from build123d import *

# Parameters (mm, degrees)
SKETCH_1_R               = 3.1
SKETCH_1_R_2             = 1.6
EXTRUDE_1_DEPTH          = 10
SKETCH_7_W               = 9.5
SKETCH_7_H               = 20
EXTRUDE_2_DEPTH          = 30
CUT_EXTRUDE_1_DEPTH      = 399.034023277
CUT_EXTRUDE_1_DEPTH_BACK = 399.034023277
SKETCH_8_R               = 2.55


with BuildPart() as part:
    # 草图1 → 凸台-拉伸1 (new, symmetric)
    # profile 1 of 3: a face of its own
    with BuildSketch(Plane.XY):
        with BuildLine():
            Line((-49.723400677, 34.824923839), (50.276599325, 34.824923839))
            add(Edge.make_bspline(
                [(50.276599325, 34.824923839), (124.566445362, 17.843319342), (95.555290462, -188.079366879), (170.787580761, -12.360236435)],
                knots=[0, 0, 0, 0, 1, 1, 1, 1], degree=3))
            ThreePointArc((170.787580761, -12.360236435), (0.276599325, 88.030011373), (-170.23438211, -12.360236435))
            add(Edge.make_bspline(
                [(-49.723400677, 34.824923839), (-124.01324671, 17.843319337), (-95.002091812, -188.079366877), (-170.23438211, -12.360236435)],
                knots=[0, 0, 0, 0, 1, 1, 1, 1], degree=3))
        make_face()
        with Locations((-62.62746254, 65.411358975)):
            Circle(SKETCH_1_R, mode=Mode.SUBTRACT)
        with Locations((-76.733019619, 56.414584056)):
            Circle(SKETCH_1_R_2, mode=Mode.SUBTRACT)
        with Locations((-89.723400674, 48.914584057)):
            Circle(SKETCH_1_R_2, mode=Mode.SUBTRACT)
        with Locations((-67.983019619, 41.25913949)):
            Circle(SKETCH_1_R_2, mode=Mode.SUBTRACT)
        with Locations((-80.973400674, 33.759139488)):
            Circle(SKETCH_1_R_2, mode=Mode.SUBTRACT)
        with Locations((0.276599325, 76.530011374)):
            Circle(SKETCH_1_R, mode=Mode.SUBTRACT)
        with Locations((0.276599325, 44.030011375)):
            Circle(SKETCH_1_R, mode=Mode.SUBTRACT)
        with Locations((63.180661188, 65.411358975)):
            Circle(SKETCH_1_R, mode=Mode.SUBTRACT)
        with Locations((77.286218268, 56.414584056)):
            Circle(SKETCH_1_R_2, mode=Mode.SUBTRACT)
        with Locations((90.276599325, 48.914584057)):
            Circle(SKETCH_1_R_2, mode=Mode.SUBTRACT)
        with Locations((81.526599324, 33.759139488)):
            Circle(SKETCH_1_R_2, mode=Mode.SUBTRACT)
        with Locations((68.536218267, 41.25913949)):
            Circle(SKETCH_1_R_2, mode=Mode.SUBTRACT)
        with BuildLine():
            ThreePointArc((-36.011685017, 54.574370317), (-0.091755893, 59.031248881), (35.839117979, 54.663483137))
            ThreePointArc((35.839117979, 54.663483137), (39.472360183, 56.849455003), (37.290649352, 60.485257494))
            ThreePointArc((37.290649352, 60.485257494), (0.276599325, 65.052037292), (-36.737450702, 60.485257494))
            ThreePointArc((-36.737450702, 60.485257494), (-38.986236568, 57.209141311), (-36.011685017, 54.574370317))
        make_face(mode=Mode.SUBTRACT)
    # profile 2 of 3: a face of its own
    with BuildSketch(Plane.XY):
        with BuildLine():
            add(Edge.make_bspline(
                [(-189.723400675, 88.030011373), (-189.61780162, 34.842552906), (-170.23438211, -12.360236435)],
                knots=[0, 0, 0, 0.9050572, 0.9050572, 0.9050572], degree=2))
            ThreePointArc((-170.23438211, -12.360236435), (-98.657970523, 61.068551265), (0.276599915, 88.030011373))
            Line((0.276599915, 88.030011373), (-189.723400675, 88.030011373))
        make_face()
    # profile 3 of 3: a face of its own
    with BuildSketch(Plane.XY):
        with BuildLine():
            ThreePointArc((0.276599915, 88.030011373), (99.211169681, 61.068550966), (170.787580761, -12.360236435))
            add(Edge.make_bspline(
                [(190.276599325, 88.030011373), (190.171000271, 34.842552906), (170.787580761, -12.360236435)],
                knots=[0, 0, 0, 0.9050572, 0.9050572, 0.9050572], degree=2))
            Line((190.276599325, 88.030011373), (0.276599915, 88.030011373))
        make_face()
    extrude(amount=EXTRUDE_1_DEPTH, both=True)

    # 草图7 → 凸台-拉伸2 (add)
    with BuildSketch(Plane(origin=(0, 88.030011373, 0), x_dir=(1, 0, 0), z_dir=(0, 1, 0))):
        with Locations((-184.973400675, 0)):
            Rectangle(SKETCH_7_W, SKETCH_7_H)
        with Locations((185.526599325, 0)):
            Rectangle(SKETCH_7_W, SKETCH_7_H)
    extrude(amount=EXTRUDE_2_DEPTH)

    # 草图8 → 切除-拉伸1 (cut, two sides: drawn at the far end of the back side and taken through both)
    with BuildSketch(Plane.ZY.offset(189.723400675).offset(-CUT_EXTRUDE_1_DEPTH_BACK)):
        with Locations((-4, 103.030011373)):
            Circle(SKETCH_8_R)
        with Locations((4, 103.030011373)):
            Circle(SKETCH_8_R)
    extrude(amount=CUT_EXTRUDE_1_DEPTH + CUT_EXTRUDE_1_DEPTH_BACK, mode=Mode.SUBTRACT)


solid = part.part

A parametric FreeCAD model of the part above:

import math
import FreeCAD as App
import Part
import Sketcher

V = App.Vector


def add_polygon(sketch, points):
    """Adds a closed chain of lines whose ends are joined by coincident constraints."""
    first, n = sketch.GeometryCount, len(points)
    for a, b in zip(points, points[1:] + points[:1]):
        sketch.addGeometry(Part.LineSegment(App.Vector(*a, 0), App.Vector(*b, 0)), False)
    for i in range(n):
        sketch.addConstraint(Sketcher.Constraint("Coincident", first + i, 2, first + (i + 1) % n, 1))

doc = App.newDocument("Part")
body = doc.addObject("PartDesign::Body", "Body")

# Sketch on XY plane
sketch1 = doc.addObject("Sketcher::SketchObject", "Sketch")
body.addObject(sketch1)
sketch1.AttachmentSupport = (doc.XY_Plane, [""])
sketch1.MapMode = "FlatFace"
sketch1.addGeometry(Part.LineSegment(V(-49.723401, 34.824924, 0), V(50.276599, 34.824924, 0)), False)
sketch1.addGeometry(Part.BSplineCurve([V(50.276599, 34.824924, 0), V(124.566445, 17.843319, 0), V(95.55529, -188.079367, 0), V(170.787581, -12.360236, 0)], [4, 4], [0, 1], False, 3, [1, 1, 1, 1], False), False)
sketch1.addGeometry(Part.BSplineCurve([V(190.276599, 88.030011, 0), V(190.171, 34.842553, 0), V(170.787581, -12.360236, 0)], [3, 3], [0, 0.9050572], False, 2, [1, 1, 1], False), False)
sketch1.addGeometry(Part.LineSegment(V(190.276599, 88.030011, 0), V(-189.723401, 88.030011, 0)), False)
sketch1.addGeometry(Part.BSplineCurve([V(-189.723401, 88.030011, 0), V(-189.617802, 34.842553, 0), V(-170.234382, -12.360236, 0)], [3, 3], [0, 0.9050572], False, 2, [1, 1, 1], False), False)
sketch1.addGeometry(Part.BSplineCurve([V(-49.723401, 34.824924, 0), V(-124.013247, 17.843319, 0), V(-95.002092, -188.079367, 0), V(-170.234382, -12.360236, 0)], [4, 4], [0, 1], False, 3, [1, 1, 1, 1], False), False)
sketch1.addGeometry(Part.Circle(V(-80.973401, 33.759139, 0), V(0, 0, 1), 1.6), False)
sketch1.addGeometry(Part.Circle(V(-67.98302, 41.259139, 0), V(0, 0, 1), 1.6), False)
sketch1.addGeometry(Part.Circle(V(-89.723401, 48.914584, 0), V(0, 0, 1), 1.6), False)
sketch1.addGeometry(Part.Circle(V(0.276599, 44.030011, 0), V(0, 0, 1), 3.1), False)
sketch1.addGeometry(Part.Circle(V(81.526599, 33.759139, 0), V(0, 0, 1), 1.6), False)
sketch1.addGeometry(Part.Circle(V(68.536218, 41.259139, 0), V(0, 0, 1), 1.6), False)
sketch1.addGeometry(Part.Circle(V(90.276599, 48.914584, 0), V(0, 0, 1), 1.6), False)
sketch1.addGeometry(Part.Circle(V(-76.73302, 56.414584, 0), V(0, 0, 1), 1.6), False)
sketch1.addGeometry(Part.Circle(V(-62.627463, 65.411359, 0), V(0, 0, 1), 3.1), False)
sketch1.addGeometry(Part.ArcOfCircle(Part.Circle(V(0.092371, -89.428339, 0), V(0, 0, 1), 148.459702), math.radians(76.067172), math.radians(104.07495)), False)
sketch1.addGeometry(Part.ArcOfCircle(Part.Circle(V(-36.008167, 57.574802, 0), V(0, 0, 1), 3.000434), math.radians(104.067172), math.radians(269.932828)), False)
sketch1.addGeometry(Part.ArcOfCircle(Part.Circle(V(0.276599, -87.232005, 0), V(0, 0, 1), 152.284042), math.radians(75.932828), math.radians(104.067172)), False)
sketch1.addGeometry(Part.ArcOfCircle(Part.Circle(V(36.561471, 57.575221, 0), V(0, 0, 1), 3.000002), math.radians(-103.932828), math.radians(75.932828)), False)
sketch1.addGeometry(Part.Circle(V(0.276599, 76.530011, 0), V(0, 0, 1), 3.1), False)
sketch1.addGeometry(Part.Circle(V(77.286218, 56.414584, 0), V(0, 0, 1), 1.6), False)
sketch1.addGeometry(Part.Circle(V(63.180661, 65.411359, 0), V(0, 0, 1), 3.1), False)
sketch1.addConstraint(Sketcher.Constraint("Block", 1))
sketch1.addConstraint(Sketcher.Constraint("Block", 2))
sketch1.addConstraint(Sketcher.Constraint("Block", 4))
sketch1.addConstraint(Sketcher.Constraint("Block", 5))
sketch1.addConstraint(Sketcher.Constraint("Coincident", 0, 2, 1, 1))
sketch1.addConstraint(Sketcher.Constraint("Coincident", 2, 1, 3, 1))
sketch1.addConstraint(Sketcher.Constraint("Coincident", 3, 2, 4, 1))
sketch1.addConstraint(Sketcher.Constraint("Coincident", 5, 1, 0, 1))
sketch1.addConstraint(Sketcher.Constraint("Coincident", 15, 2, 16, 2))
sketch1.addConstraint(Sketcher.Constraint("Tangent", 16, 1, 17, 2))
sketch1.addConstraint(Sketcher.Constraint("Tangent", 17, 1, 18, 2))
sketch1.addConstraint(Sketcher.Constraint("Tangent", 18, 1, 15, 1))
sketch1.addConstraint(Sketcher.Constraint("Equal", 6, 7))
sketch1.addConstraint(Sketcher.Constraint("Equal", 7, 8))
sketch1.addConstraint(Sketcher.Constraint("Equal", 8, 10))
sketch1.addConstraint(Sketcher.Constraint("Equal", 10, 11))
sketch1.addConstraint(Sketcher.Constraint("Equal", 11, 12))
sketch1.addConstraint(Sketcher.Constraint("Equal", 12, 13))
sketch1.addConstraint(Sketcher.Constraint("Equal", 9, 14))
sketch1.addConstraint(Sketcher.Constraint("Equal", 14, 19))
sketch1.addConstraint(Sketcher.Constraint("Equal", 13, 20))
sketch1.addConstraint(Sketcher.Constraint("Equal", 19, 21))
sketch1.addConstraint(Sketcher.Constraint("Horizontal", 6, 3, 10, 3))
sketch1.addConstraint(Sketcher.Constraint("Horizontal", 7, 3, 11, 3))
sketch1.addConstraint(Sketcher.Constraint("Horizontal", 8, 3, 12, 3))
sketch1.addConstraint(Sketcher.Constraint("Horizontal", 13, 3, 20, 3))
sketch1.addConstraint(Sketcher.Constraint("Horizontal", 14, 3, 21, 3))
sketch1.addConstraint(Sketcher.Constraint("Horizontal", 16, 1, 17, 1))
sketch1.addConstraint(Sketcher.Constraint("Vertical", 9, 3, 17, 3))
sketch1.addConstraint(Sketcher.Constraint("Vertical", 17, 3, 19, 3))
sketch1.addConstraint(Sketcher.Constraint("Diameter", 6, 3.2))
sketch1.addConstraint(Sketcher.Constraint("Diameter", 9, 6.2))
sketch1.addConstraint(Sketcher.Constraint("DistanceX", 8, 3, 9, 3, 90.0))
sketch1.addConstraint(Sketcher.Constraint("DistanceX", 9, 3, 12, 3, 90.0))
sketch1.addConstraint(Sketcher.Constraint("DistanceX", 3, 2, 8, 3, 100.0))
sketch1.addConstraint(Sketcher.Constraint("DistanceY", 6, 3, 7, 3, 7.5))
sketch1.addConstraint(Sketcher.Constraint("DistanceX", 6, 3, 10, 3, 162.5))
sketch1.addConstraint(Sketcher.Constraint("DistanceY", 8, 3, 13, 3, 7.5))
sketch1.addConstraint(Sketcher.Constraint("DistanceY", 9, 3, 19, 3, 32.5))
sketch1.addConstraint(Sketcher.Constraint("DistanceX", 8, 3, 6, 3, 8.75))
sketch1.addConstraint(Sketcher.Constraint("DistanceX", 13, 3, 7, 3, 8.75))
sketch1.addConstraint(Sketcher.Constraint("DistanceX", 11, 3, 20, 3, 8.75))
sketch1.addConstraint(Sketcher.Constraint("Radius", 15, 148.459702))
sketch1.addConstraint(Sketcher.Constraint("Radius", 16, 3.000434))
sketch1.addConstraint(Sketcher.Constraint("Radius", 17, 152.284042))
sketch1.addConstraint(Sketcher.Constraint("Radius", 18, 3.000002))
sketch1.addConstraint(Sketcher.Constraint("DistanceY", 16, 1, 14, 3, 4.926101))
sketch1.addConstraint(Sketcher.Constraint("DistanceX", 18, 1, 11, 3, 32.6971))
sketch1.addConstraint(Sketcher.Constraint("DistanceY", -1, 1, 6, 3, 33.759139))
sketch1.addConstraint(Sketcher.Constraint("DistanceX", 7, 3, -1, 1, 67.98302))
sketch1.addConstraint(Sketcher.Constraint("DistanceY", -1, 1, 9, 3, 44.030011))
sketch1.addConstraint(Sketcher.Constraint("DistanceX", -1, 1, 11, 3, 68.536218))
sketch1.addConstraint(Sketcher.Constraint("DistanceY", -1, 1, 14, 3, 65.411359))
sketch1.addConstraint(Sketcher.Constraint("DistanceX", -1, 1, 15, 3, 0.092371))
sketch1.addConstraint(Sketcher.Constraint("DistanceX", -1, 1, 21, 3, 63.180661))
sketch1.addConstraint(Sketcher.Constraint("DistanceX", 8, 3, 14, 3, 27.095938))
sketch1.addConstraint(Sketcher.Constraint("DistanceY", 13, 3, 16, 3, 1.160218))
pad1 = doc.addObject("PartDesign::Pad", "Pad")
body.addObject(pad1)
pad1.Profile = sketch1
pad1.Length = 20
pad1.Midplane = True

# Sketch on XZ plane
sketch2 = doc.addObject("Sketcher::SketchObject", "Sketch001")
body.addObject(sketch2)
sketch2.AttachmentSupport = (doc.XZ_Plane, [""])
sketch2.MapMode = "FlatFace"
sketch2.AttachmentOffset = App.Placement(V(0, 0, -88.030011), App.Rotation())
add_polygon(sketch2, [(-189.723401, -10), (-189.723401, 10), (-180.223401, 10), (-180.223401, -10)])  # lines 0-3
add_polygon(sketch2, [(180.776599, -10), (180.776599, 10), (190.276599, 10), (190.276599, -10)])  # lines 4-7
sketch2.addConstraint(Sketcher.Constraint("Vertical", 0))
sketch2.addConstraint(Sketcher.Constraint("Horizontal", 1))
sketch2.addConstraint(Sketcher.Constraint("Vertical", 2))
sketch2.addConstraint(Sketcher.Constraint("Horizontal", 3))
sketch2.addConstraint(Sketcher.Constraint("Vertical", 4))
sketch2.addConstraint(Sketcher.Constraint("Horizontal", 5))
sketch2.addConstraint(Sketcher.Constraint("Vertical", 6))
sketch2.addConstraint(Sketcher.Constraint("Horizontal", 7))
sketch2.addConstraint(Sketcher.Constraint("Horizontal", 1, 2, 4, 2))
sketch2.addConstraint(Sketcher.Constraint("Horizontal", 3, 2, 6, 2))
sketch2.addConstraint(Sketcher.Constraint("Equal", 3, 5))
sketch2.addConstraint(Sketcher.Constraint("DistanceY", 0, 1, 0, 2, 20.0))
sketch2.addConstraint(Sketcher.Constraint("DistanceX", 1, 1, 1, 2, 9.5))
sketch2.addConstraint(Sketcher.Constraint("DistanceY", -1, 1, 0, 2, 10.0))
sketch2.addConstraint(Sketcher.Constraint("DistanceX", 1, 2, 4, 2, 361.0))
sketch2.addConstraint(Sketcher.Constraint("DistanceX", 0, 2, -1, 1, 189.723401))
pad2 = doc.addObject("PartDesign::Pad", "Pad001")
body.addObject(pad2)
pad2.Profile = sketch2
pad2.Length = 30
pad2.Reversed = True

# Sketch on YZ plane
sketch3 = doc.addObject("Sketcher::SketchObject", "Sketch002")
body.addObject(sketch3)
sketch3.AttachmentSupport = (doc.YZ_Plane, [""])
sketch3.MapMode = "FlatFace"
sketch3.AttachmentOffset = App.Placement(V(0, 0, -189.723401), App.Rotation())
sketch3.addGeometry(Part.Circle(V(103.030011, -4, 0), V(0, 0, 1), 2.55), False)
sketch3.addGeometry(Part.Circle(V(103.030011, 4, 0), V(0, 0, 1), 2.55), False)
sketch3.addConstraint(Sketcher.Constraint("Equal", 0, 1))
sketch3.addConstraint(Sketcher.Constraint("Symmetric", 0, 3, 1, 3, -1))
sketch3.addConstraint(Sketcher.Constraint("Diameter", 0, 5.1))
sketch3.addConstraint(Sketcher.Constraint("DistanceY", 0, 3, -1, 1, 4.0))
sketch3.addConstraint(Sketcher.Constraint("DistanceX", -1, 1, 0, 3, 103.030011))
pocket1 = doc.addObject("PartDesign::Pocket", "Pocket")
body.addObject(pocket1)
pocket1.Profile = sketch3
pocket1.Type = "ThroughAll"
pocket1.Midplane = True

doc.recompute()
